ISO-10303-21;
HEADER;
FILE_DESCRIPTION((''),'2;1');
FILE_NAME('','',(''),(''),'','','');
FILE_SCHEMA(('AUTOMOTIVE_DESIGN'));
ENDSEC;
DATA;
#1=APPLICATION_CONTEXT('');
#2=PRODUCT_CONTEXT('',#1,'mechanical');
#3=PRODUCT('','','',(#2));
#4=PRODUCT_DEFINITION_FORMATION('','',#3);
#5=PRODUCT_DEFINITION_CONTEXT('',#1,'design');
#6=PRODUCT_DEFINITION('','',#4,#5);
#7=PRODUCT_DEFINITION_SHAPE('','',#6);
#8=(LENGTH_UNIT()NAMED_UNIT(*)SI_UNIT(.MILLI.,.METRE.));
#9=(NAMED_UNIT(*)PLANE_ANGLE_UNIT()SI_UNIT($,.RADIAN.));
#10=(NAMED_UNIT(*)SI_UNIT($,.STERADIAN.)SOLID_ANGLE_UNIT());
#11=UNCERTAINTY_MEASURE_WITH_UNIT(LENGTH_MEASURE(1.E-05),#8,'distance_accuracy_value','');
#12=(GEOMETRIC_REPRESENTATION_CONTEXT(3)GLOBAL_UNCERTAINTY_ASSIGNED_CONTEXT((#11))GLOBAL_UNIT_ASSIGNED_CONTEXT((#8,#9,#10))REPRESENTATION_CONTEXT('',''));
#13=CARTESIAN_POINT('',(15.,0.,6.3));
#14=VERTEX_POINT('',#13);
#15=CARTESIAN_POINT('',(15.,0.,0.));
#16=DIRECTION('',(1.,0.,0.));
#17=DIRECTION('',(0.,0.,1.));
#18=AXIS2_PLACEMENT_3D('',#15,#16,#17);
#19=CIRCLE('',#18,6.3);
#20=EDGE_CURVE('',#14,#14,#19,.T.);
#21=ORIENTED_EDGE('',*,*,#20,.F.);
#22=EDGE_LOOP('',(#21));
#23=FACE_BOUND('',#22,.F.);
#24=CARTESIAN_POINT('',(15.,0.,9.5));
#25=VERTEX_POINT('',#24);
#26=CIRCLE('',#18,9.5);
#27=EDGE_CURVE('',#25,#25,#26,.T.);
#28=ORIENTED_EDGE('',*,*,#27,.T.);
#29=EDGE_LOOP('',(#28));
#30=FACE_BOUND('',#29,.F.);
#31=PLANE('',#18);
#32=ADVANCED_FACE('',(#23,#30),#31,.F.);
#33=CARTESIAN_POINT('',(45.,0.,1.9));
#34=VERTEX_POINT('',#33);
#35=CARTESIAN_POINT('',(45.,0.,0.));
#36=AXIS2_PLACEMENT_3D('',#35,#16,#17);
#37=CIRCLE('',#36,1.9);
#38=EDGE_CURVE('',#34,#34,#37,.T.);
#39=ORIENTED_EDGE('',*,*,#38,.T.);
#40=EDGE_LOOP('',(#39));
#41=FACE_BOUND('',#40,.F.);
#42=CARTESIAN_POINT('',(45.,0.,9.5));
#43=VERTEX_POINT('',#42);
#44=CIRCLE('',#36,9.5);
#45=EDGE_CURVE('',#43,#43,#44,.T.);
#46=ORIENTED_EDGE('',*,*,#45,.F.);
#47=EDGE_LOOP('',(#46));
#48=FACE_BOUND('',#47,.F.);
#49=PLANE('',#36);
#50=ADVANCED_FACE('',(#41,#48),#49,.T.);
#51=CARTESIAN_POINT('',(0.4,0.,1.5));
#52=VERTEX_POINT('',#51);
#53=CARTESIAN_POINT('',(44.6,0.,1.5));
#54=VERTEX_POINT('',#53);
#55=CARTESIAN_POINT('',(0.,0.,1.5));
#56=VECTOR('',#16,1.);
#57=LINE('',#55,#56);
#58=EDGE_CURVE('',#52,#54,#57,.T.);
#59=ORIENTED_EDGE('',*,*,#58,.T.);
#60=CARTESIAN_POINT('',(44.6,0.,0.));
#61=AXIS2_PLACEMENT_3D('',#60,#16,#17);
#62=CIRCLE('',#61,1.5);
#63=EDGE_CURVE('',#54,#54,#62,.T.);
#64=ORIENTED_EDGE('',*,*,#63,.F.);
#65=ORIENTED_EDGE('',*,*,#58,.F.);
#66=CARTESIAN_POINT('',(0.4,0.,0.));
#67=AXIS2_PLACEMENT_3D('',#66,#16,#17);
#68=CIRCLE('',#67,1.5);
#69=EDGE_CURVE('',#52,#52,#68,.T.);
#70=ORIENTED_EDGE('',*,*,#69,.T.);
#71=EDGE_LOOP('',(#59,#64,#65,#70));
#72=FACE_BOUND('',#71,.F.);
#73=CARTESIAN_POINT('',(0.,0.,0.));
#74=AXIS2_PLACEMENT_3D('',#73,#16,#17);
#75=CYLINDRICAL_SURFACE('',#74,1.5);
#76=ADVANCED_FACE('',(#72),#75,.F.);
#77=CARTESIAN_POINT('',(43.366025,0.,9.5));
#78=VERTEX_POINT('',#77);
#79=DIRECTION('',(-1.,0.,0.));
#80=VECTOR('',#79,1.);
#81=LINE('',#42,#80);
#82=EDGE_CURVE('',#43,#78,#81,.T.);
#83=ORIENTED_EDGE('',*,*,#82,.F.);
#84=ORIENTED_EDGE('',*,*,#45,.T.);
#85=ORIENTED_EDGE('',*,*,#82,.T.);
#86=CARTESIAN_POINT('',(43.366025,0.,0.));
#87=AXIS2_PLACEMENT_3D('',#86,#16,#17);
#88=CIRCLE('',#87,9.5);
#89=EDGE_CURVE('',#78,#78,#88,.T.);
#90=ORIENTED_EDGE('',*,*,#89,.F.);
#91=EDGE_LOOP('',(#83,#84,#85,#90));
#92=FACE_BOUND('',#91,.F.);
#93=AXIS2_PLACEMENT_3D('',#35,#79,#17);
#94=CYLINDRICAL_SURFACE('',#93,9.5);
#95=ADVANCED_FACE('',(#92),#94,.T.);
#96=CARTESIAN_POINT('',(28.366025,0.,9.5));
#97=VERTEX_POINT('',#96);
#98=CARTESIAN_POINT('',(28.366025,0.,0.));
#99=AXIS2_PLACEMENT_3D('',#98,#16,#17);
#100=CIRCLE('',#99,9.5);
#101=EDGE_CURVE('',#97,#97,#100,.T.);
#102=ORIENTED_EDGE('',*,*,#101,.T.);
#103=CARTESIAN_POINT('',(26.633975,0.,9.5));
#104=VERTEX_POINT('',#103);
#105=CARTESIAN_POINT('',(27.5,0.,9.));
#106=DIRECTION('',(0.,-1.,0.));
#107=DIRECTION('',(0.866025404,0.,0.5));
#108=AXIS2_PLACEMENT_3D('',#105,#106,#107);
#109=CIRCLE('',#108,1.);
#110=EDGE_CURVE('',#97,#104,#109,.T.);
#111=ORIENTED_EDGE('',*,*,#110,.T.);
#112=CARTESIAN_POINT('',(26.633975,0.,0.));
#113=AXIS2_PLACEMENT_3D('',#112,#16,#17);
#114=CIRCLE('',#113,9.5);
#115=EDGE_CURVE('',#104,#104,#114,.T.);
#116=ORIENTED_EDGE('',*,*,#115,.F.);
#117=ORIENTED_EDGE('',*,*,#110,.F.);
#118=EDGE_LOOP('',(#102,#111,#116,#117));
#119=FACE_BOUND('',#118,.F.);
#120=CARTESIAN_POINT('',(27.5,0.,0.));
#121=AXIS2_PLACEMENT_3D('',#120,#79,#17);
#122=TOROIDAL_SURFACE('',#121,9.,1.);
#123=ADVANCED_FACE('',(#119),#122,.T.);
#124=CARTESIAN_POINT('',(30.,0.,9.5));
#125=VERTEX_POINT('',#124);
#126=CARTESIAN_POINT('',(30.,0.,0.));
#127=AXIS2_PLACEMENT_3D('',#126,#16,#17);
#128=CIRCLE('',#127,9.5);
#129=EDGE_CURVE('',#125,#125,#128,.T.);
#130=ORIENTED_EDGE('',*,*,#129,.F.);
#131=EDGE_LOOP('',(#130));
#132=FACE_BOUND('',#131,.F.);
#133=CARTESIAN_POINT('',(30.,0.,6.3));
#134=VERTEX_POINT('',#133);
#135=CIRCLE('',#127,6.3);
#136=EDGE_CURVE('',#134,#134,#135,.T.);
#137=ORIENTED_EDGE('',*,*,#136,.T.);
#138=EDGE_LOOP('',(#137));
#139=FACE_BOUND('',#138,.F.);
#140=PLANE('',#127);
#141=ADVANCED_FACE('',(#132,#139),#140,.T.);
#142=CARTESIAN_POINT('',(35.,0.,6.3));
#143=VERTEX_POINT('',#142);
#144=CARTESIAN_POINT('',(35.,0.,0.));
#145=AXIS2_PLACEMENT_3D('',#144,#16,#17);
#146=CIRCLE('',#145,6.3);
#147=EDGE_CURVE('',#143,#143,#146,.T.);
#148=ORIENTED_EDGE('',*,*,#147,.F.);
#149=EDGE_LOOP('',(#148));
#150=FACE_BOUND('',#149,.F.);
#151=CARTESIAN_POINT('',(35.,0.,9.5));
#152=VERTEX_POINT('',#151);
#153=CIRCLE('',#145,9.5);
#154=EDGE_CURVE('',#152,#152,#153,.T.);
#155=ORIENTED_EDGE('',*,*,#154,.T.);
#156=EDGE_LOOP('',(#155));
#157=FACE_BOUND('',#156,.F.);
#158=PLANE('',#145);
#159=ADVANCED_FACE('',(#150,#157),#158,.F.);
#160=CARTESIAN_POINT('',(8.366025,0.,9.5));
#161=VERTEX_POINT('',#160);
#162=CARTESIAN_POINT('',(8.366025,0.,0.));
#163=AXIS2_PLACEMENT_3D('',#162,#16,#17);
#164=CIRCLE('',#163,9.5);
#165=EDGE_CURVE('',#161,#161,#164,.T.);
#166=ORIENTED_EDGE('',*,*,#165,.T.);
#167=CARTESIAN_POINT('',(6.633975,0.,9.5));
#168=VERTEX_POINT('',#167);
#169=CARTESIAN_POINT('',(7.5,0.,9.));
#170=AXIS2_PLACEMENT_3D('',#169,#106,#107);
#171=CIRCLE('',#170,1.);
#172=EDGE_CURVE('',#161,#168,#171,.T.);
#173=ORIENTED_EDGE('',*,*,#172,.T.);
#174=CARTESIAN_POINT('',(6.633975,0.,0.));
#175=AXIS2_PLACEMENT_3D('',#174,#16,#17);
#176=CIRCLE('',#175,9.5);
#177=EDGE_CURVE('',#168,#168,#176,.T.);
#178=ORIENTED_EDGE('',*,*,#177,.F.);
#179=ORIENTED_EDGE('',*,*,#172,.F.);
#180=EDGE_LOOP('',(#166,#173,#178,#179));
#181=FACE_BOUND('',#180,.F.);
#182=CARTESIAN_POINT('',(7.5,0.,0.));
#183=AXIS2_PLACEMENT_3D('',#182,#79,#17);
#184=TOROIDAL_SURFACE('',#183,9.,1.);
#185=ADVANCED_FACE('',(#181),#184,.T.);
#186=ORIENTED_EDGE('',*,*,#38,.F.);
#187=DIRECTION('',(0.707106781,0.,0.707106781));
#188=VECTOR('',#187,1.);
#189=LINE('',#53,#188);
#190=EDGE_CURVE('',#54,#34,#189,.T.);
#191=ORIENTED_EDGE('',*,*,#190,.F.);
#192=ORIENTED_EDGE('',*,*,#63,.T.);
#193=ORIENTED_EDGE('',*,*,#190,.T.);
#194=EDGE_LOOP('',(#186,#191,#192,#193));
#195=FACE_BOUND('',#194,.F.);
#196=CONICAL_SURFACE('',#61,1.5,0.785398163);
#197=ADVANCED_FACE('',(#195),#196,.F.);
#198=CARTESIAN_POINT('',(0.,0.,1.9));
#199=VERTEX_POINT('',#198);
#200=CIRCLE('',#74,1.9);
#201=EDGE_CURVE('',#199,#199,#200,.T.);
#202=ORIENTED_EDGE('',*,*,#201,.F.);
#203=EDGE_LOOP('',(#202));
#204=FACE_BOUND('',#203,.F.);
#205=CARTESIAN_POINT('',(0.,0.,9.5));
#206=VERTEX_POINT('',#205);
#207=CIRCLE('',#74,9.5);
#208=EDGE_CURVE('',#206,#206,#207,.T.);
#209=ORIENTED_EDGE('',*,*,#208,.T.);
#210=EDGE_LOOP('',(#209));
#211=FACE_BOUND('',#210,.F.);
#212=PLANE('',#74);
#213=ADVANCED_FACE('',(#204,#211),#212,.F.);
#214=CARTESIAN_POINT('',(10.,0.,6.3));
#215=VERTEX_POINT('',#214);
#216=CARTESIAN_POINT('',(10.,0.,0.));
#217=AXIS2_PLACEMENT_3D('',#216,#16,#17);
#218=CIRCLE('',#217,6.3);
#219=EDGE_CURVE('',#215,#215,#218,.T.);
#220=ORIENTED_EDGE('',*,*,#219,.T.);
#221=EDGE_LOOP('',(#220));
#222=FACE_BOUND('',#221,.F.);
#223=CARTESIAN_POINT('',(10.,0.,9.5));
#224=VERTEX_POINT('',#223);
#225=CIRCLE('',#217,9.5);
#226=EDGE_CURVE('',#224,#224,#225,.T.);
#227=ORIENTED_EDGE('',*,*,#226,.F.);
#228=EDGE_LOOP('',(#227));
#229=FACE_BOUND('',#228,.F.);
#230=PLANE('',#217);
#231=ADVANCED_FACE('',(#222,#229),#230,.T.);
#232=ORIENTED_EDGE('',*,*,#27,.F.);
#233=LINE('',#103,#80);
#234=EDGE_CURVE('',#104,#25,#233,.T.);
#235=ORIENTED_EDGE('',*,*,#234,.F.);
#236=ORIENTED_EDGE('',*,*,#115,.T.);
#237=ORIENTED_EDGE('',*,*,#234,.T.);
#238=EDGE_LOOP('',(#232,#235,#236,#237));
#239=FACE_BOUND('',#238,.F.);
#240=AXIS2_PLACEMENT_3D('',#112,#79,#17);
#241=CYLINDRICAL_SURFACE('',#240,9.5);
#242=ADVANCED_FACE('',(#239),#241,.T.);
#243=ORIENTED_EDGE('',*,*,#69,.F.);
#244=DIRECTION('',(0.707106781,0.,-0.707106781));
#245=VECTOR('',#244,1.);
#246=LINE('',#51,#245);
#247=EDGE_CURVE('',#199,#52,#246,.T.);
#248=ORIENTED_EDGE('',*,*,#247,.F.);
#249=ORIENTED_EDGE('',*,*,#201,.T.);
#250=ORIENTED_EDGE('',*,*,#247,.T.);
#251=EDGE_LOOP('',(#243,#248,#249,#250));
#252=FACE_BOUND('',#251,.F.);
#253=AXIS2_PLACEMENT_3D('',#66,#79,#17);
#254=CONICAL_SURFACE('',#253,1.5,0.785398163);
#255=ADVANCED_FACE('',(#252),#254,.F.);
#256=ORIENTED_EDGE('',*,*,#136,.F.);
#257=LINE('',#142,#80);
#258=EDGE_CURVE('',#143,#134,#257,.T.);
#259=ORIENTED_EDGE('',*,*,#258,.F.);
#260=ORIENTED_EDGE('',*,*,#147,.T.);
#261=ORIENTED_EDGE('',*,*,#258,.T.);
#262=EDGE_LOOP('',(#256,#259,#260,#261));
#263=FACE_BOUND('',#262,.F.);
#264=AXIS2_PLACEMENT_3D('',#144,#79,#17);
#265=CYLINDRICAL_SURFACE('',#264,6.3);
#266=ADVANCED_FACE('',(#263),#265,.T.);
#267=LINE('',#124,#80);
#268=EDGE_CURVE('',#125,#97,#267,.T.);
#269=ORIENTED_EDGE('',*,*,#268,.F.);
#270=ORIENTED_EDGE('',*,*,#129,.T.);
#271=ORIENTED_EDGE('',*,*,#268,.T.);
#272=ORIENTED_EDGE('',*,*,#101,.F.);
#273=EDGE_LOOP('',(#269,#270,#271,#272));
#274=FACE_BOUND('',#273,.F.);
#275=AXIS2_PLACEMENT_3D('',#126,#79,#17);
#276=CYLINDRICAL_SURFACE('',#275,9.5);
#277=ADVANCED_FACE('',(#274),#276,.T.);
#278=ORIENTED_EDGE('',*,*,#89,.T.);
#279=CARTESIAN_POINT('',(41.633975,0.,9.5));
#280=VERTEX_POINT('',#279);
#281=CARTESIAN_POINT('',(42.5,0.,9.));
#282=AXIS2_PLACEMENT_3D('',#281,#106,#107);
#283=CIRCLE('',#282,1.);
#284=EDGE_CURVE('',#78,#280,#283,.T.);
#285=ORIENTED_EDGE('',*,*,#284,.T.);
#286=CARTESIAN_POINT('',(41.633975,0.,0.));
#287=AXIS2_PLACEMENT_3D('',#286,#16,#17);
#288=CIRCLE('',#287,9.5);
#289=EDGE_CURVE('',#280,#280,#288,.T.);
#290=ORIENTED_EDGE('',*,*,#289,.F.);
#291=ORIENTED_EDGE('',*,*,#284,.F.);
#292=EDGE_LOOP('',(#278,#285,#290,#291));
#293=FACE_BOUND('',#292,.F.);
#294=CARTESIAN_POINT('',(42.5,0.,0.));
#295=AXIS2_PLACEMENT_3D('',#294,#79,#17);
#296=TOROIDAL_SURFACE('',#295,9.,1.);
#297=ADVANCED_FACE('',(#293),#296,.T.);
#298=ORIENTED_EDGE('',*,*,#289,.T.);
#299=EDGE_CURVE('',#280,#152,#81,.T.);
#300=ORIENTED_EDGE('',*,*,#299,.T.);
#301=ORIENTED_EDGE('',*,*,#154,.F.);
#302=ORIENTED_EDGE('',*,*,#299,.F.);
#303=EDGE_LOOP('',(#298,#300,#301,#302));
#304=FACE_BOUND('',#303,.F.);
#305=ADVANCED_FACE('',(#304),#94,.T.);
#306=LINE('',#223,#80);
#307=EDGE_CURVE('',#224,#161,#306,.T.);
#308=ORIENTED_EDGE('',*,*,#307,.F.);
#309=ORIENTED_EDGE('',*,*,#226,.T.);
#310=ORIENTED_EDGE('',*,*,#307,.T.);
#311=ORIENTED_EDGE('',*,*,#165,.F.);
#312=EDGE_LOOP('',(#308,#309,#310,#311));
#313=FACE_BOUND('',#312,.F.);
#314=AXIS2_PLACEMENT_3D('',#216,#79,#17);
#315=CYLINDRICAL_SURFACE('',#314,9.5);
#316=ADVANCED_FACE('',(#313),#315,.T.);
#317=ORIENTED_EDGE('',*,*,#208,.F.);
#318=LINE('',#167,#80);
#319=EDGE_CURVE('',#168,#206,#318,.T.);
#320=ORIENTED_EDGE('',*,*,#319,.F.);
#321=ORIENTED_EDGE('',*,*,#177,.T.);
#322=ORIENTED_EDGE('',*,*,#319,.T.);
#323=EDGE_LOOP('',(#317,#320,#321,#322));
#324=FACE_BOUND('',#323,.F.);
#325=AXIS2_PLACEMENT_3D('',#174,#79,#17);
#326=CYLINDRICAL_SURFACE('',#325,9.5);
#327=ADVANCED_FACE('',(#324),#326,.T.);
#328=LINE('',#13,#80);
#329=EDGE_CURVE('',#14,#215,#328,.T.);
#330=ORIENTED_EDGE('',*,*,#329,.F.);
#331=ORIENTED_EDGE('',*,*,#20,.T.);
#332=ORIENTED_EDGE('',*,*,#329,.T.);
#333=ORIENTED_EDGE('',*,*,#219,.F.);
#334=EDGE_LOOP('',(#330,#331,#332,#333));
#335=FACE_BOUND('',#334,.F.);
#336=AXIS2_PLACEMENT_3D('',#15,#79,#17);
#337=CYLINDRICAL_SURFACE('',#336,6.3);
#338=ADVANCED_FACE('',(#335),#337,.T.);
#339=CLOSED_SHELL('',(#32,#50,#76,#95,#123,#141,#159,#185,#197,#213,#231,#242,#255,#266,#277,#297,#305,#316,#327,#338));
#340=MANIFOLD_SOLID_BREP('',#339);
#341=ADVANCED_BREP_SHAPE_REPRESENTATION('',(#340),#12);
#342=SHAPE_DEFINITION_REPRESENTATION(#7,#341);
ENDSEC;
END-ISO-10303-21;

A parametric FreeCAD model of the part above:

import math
import FreeCAD as App
import Part
import Sketcher


def edges_at(feature, points):
    """Names of the edges that pass closest to the given points."""
    edges = feature.Shape.Edges
    near = lambda p: min(range(len(edges)), key=lambda i: edges[i].distToShape(Part.Vertex(*p))[0])
    return sorted({f"Edge{near(p) + 1}" for p in points})

doc = App.newDocument("Part")
body = doc.addObject("PartDesign::Body", "Body")

sketch1 = body.newObject("Sketcher::SketchObject", "Sketch")
sketch1.AttachmentSupport = (doc.getObject("XZ_Plane"), [""])
sketch1.MapMode = "FlatFace"
sketch1.addGeometry([
    Part.LineSegment(App.Vector(0, 9.5, 0), App.Vector(0, 1.5, 0)),
    Part.LineSegment(App.Vector(0, 1.5, 0), App.Vector(45, 1.5, 0)),
    Part.LineSegment(App.Vector(45, 1.5, 0), App.Vector(45, 9.5, 0)),
    Part.LineSegment(App.Vector(45, 9.5, 0), App.Vector(43.4, 9.5, 0)),
    Part.ArcOfCircle(Part.Circle(App.Vector(42.5, 9, 0), App.Vector(0, 0, 1), 1), math.radians(30), math.radians(150)),
    Part.LineSegment(App.Vector(41.6, 9.5, 0), App.Vector(35, 9.5, 0)),
    Part.LineSegment(App.Vector(35, 9.5, 0), App.Vector(35, 6.3, 0)),
    Part.LineSegment(App.Vector(35, 6.3, 0), App.Vector(30, 6.3, 0)),
    Part.LineSegment(App.Vector(30, 6.3, 0), App.Vector(30, 9.5, 0)),
    Part.LineSegment(App.Vector(30, 9.5, 0), App.Vector(28.4, 9.5, 0)),
    Part.ArcOfCircle(Part.Circle(App.Vector(27.5, 9, 0), App.Vector(0, 0, 1), 1), math.radians(30), math.radians(150)),
    Part.LineSegment(App.Vector(26.6, 9.5, 0), App.Vector(15, 9.5, 0)),
    Part.LineSegment(App.Vector(15, 9.5, 0), App.Vector(15, 6.3, 0)),
    Part.LineSegment(App.Vector(15, 6.3, 0), App.Vector(10, 6.3, 0)),
    Part.LineSegment(App.Vector(10, 6.3, 0), App.Vector(10, 9.5, 0)),
    Part.LineSegment(App.Vector(10, 9.5, 0), App.Vector(8.4, 9.5, 0)),
    Part.ArcOfCircle(Part.Circle(App.Vector(7.5, 9, 0), App.Vector(0, 0, 1), 1), math.radians(30), math.radians(150)),
    Part.LineSegment(App.Vector(6.6, 9.5, 0), App.Vector(0, 9.5, 0)),
], False)
sketch1.addConstraint([
    Sketcher.Constraint("Coincident", 0, 2, 1, 1),
    Sketcher.Constraint("Coincident", 1, 2, 2, 1),
    Sketcher.Constraint("Coincident", 2, 2, 3, 1),
    Sketcher.Constraint("Coincident", 3, 2, 4, 1),
    Sketcher.Constraint("Coincident", 4, 2, 5, 1),
    Sketcher.Constraint("Coincident", 5, 2, 6, 1),
    Sketcher.Constraint("Coincident", 6, 2, 7, 1),
    Sketcher.Constraint("Coincident", 7, 2, 8, 1),
    Sketcher.Constraint("Coincident", 8, 2, 9, 1),
    Sketcher.Constraint("Coincident", 9, 2, 10, 1),
    Sketcher.Constraint("Coincident", 10, 2, 11, 1),
    Sketcher.Constraint("Coincident", 11, 2, 12, 1),
    Sketcher.Constraint("Coincident", 12, 2, 13, 1),
    Sketcher.Constraint("Coincident", 13, 2, 14, 1),
    Sketcher.Constraint("Coincident", 14, 2, 15, 1),
    Sketcher.Constraint("Coincident", 15, 2, 16, 1),
    Sketcher.Constraint("Coincident", 16, 2, 17, 1),
    Sketcher.Constraint("Coincident", 17, 2, 0, 1),
    Sketcher.Constraint("Vertical", 0),
    Sketcher.Constraint("Horizontal", 1),
    Sketcher.Constraint("Vertical", 2),
    Sketcher.Constraint("Horizontal", 3),
    Sketcher.Constraint("Horizontal", 5),
    Sketcher.Constraint("Vertical", 6),
    Sketcher.Constraint("Horizontal", 7),
    Sketcher.Constraint("Vertical", 8),
    Sketcher.Constraint("Horizontal", 9),
    Sketcher.Constraint("Horizontal", 11),
    Sketcher.Constraint("Vertical", 12),
    Sketcher.Constraint("Horizontal", 13),
    Sketcher.Constraint("Vertical", 14),
    Sketcher.Constraint("Horizontal", 15),
    Sketcher.Constraint("Horizontal", 17),
    Sketcher.Constraint("Equal", 4, 10),
    Sketcher.Constraint("Equal", 10, 16),
    Sketcher.Constraint("PointOnObject", 0, 2, -2),
    Sketcher.Constraint("Horizontal", 4, 3, 10, 3),
    Sketcher.Constraint("Horizontal", 10, 3, 16, 3),
    Sketcher.Constraint("Horizontal", 3, 2, 4, 2),
    Sketcher.Constraint("Horizontal", 5, 2, 8, 2),
    Sketcher.Constraint("Horizontal", 9, 2, 10, 2),
    Sketcher.Constraint("Horizontal", 7, 2, 12, 2),
    Sketcher.Constraint("Horizontal", 11, 2, 14, 2),
    Sketcher.Constraint("Horizontal", 15, 2, 16, 2),
    Sketcher.Constraint("Equal", 3, 9),
    Sketcher.Constraint("Equal", 7, 13),
    Sketcher.Constraint("Equal", 9, 15),
    Sketcher.Constraint("Equal", 5, 17),
    Sketcher.Constraint("Radius", 4, 1.0),
    Sketcher.Constraint("DistanceX", 1, 1, 1, 2, 45.0),
    Sketcher.Constraint("DistanceX", 7, 2, 7, 1, 5.0),
    Sketcher.Constraint("DistanceY", 0, 2, 0, 1, 8.0),
    Sketcher.Constraint("DistanceY", 6, 2, 6, 1, 3.2),
    Sketcher.Constraint("DistanceY", -1, 1, 4, 3, 9.0),
    Sketcher.Constraint("DistanceX", -1, 1, 5, 2, 35.0),
    Sketcher.Constraint("DistanceX", -1, 1, 4, 3, 42.5),
    Sketcher.Constraint("DistanceY", -1, 1, 0, 2, 1.5),
])
revolution = body.newObject("PartDesign::Revolution", "Revolution")
revolution.Profile = sketch1
revolution.ReferenceAxis = (sketch1, ["H_Axis"])
revolution.Angle = 360
doc.recompute()

chamfer = body.newObject("PartDesign::Chamfer", "Chamfer")
chamfer.Base = (revolution, edges_at(revolution, [(0, 0, -1.5), (45, 0, -1.5)]))
chamfer.Size = 0.4

doc.recompute()
